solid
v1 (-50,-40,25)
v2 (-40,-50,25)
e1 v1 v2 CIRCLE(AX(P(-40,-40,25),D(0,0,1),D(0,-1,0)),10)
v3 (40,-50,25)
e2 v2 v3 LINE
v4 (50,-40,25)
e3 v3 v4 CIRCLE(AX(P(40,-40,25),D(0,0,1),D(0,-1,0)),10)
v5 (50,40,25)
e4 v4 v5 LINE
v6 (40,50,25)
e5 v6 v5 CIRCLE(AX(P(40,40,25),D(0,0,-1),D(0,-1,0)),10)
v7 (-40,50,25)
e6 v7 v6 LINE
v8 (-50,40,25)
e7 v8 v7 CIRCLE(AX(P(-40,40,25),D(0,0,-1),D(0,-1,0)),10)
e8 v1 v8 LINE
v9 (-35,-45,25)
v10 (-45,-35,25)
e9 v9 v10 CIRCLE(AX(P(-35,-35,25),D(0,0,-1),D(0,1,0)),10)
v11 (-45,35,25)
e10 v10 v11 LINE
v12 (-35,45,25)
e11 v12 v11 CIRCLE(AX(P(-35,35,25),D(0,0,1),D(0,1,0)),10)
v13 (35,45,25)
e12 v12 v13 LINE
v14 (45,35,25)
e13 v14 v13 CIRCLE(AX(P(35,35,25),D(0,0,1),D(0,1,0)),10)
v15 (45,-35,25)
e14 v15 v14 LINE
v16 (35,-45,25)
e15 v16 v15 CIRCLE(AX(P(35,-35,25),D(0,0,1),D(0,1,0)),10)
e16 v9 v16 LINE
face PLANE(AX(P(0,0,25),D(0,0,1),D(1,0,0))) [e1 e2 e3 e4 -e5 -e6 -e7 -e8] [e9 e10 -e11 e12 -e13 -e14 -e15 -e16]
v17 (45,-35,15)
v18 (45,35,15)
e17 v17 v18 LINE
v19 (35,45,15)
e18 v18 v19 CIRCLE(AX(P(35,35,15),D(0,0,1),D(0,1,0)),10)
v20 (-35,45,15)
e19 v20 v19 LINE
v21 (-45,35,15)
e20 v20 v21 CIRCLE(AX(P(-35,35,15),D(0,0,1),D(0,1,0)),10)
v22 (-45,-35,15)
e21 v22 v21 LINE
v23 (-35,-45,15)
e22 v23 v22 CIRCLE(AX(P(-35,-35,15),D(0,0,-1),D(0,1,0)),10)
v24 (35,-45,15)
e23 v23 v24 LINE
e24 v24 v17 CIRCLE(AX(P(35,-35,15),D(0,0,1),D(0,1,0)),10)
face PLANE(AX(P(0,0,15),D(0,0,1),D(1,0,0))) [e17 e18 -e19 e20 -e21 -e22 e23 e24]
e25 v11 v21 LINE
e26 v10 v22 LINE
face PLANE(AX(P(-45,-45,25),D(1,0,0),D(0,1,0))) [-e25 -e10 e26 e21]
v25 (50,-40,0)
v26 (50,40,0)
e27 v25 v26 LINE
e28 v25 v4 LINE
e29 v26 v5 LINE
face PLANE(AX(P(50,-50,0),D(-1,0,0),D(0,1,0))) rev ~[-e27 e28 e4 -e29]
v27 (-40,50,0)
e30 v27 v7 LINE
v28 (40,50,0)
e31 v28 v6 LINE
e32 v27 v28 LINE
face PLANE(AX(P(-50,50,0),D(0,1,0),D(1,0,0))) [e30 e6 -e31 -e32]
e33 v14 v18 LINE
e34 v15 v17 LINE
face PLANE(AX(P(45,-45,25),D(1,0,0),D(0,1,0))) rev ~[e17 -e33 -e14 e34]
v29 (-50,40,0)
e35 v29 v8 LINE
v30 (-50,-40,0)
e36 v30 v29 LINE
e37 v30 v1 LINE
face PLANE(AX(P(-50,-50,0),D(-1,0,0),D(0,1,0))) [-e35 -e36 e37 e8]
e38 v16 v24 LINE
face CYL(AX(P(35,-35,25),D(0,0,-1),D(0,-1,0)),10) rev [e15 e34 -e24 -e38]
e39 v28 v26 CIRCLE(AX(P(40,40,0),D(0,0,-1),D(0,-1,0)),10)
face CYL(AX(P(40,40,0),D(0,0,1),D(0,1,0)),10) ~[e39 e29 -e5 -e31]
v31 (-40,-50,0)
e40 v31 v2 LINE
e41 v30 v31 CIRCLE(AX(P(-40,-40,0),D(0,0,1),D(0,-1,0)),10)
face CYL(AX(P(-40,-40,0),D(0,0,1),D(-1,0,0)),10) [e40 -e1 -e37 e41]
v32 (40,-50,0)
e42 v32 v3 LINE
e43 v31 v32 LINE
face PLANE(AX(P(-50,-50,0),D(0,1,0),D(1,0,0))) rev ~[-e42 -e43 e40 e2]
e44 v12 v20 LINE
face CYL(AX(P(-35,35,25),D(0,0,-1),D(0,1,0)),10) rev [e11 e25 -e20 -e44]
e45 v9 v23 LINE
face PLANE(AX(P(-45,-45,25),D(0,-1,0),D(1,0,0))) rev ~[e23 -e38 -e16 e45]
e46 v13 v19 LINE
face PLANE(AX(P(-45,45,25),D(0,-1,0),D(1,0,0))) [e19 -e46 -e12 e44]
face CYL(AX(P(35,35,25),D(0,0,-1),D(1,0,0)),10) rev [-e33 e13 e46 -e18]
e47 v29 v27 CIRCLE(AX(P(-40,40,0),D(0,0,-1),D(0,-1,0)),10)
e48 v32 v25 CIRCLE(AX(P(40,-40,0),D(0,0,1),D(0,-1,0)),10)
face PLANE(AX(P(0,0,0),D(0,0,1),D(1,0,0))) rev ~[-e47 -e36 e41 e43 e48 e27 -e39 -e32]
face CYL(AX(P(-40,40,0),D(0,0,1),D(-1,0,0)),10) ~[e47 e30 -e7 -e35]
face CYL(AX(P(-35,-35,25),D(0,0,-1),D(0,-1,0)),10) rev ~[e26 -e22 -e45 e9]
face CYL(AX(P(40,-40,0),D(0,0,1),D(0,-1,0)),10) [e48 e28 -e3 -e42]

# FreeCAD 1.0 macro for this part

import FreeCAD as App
import Part
import Sketcher

V = App.Vector


def edges_at(feature, points):
    """Names of the edges that pass closest to the given points."""
    edges = feature.Shape.Edges
    near = lambda p: min(range(len(edges)), key=lambda i: edges[i].distToShape(Part.Vertex(*p))[0])
    return sorted({f"Edge{near(p) + 1}" for p in points})


def add_polygon(sketch, points):
    """Adds a closed chain of lines whose ends are joined by coincident constraints."""
    first, n = sketch.GeometryCount, len(points)
    for a, b in zip(points, points[1:] + points[:1]):
        sketch.addGeometry(Part.LineSegment(App.Vector(*a, 0), App.Vector(*b, 0)), False)
    for i in range(n):
        sketch.addConstraint(Sketcher.Constraint("Coincident", first + i, 2, first + (i + 1) % n, 1))

doc = App.newDocument("Part")
body = doc.addObject("PartDesign::Body", "Body")

sketch1 = body.newObject("Sketcher::SketchObject", "Sketch")
sketch1.AttachmentSupport = (doc.getObject("XY_Plane"), [""])
sketch1.MapMode = "FlatFace"
add_polygon(sketch1, [(-50, 50), (-50, -50), (50, -50), (50, 50)])
sketch1.addConstraint(Sketcher.Constraint("Vertical", 0))
sketch1.addConstraint(Sketcher.Constraint("Horizontal", 1))
sketch1.addConstraint(Sketcher.Constraint("Vertical", 2))
sketch1.addConstraint(Sketcher.Constraint("Horizontal", 3))
sketch1.addConstraint(Sketcher.Constraint("Symmetric", 0, 2, 2, 2, -1, 1))
sketch1.addConstraint(Sketcher.Constraint("Equal", 3, 0))
sketch1.addConstraint(Sketcher.Constraint("DistanceX", 1, 1, 1, 2, 100.0))
pad1 = body.newObject("PartDesign::Pad", "Pad")
pad1.Profile = sketch1
pad1.Length = 25

sketch2 = body.newObject("Sketcher::SketchObject", "Sketch001")
sketch2.AttachmentSupport = (doc.getObject("XY_Plane"), [""])
sketch2.MapMode = "FlatFace"
sketch2.AttachmentOffset = App.Placement(V(0, 0, 25), App.Rotation())
add_polygon(sketch2, [(-45, 45), (-45, -45), (45, -45), (45, 45)])
sketch2.addConstraint(Sketcher.Constraint("Vertical", 0))
sketch2.addConstraint(Sketcher.Constraint("Horizontal", 1))
sketch2.addConstraint(Sketcher.Constraint("Vertical", 2))
sketch2.addConstraint(Sketcher.Constraint("Horizontal", 3))
sketch2.addConstraint(Sketcher.Constraint("Symmetric", 0, 2, 2, 2, -1, 1))
sketch2.addConstraint(Sketcher.Constraint("Equal", 3, 0))
sketch2.addConstraint(Sketcher.Constraint("DistanceX", 1, 1, 1, 2, 90.0))
pocket1 = body.newObject("PartDesign::Pocket", "Pocket")
pocket1.Profile = sketch2
pocket1.Length = 10
doc.recompute()

fillet = body.newObject("PartDesign::Fillet", "Fillet")
fillet.Base = (pocket1, edges_at(pocket1, [
    (50, 50, 12.5),
    (45, 45, 20),
    (-45, 45, 20),
    (-50, 50, 12.5),
    (-50, -50, 12.5),
    (-45, -45, 20),
    (50, -50, 12.5),
    (45, -45, 20),
]))
fillet.Radius = 10

doc.recompute()
